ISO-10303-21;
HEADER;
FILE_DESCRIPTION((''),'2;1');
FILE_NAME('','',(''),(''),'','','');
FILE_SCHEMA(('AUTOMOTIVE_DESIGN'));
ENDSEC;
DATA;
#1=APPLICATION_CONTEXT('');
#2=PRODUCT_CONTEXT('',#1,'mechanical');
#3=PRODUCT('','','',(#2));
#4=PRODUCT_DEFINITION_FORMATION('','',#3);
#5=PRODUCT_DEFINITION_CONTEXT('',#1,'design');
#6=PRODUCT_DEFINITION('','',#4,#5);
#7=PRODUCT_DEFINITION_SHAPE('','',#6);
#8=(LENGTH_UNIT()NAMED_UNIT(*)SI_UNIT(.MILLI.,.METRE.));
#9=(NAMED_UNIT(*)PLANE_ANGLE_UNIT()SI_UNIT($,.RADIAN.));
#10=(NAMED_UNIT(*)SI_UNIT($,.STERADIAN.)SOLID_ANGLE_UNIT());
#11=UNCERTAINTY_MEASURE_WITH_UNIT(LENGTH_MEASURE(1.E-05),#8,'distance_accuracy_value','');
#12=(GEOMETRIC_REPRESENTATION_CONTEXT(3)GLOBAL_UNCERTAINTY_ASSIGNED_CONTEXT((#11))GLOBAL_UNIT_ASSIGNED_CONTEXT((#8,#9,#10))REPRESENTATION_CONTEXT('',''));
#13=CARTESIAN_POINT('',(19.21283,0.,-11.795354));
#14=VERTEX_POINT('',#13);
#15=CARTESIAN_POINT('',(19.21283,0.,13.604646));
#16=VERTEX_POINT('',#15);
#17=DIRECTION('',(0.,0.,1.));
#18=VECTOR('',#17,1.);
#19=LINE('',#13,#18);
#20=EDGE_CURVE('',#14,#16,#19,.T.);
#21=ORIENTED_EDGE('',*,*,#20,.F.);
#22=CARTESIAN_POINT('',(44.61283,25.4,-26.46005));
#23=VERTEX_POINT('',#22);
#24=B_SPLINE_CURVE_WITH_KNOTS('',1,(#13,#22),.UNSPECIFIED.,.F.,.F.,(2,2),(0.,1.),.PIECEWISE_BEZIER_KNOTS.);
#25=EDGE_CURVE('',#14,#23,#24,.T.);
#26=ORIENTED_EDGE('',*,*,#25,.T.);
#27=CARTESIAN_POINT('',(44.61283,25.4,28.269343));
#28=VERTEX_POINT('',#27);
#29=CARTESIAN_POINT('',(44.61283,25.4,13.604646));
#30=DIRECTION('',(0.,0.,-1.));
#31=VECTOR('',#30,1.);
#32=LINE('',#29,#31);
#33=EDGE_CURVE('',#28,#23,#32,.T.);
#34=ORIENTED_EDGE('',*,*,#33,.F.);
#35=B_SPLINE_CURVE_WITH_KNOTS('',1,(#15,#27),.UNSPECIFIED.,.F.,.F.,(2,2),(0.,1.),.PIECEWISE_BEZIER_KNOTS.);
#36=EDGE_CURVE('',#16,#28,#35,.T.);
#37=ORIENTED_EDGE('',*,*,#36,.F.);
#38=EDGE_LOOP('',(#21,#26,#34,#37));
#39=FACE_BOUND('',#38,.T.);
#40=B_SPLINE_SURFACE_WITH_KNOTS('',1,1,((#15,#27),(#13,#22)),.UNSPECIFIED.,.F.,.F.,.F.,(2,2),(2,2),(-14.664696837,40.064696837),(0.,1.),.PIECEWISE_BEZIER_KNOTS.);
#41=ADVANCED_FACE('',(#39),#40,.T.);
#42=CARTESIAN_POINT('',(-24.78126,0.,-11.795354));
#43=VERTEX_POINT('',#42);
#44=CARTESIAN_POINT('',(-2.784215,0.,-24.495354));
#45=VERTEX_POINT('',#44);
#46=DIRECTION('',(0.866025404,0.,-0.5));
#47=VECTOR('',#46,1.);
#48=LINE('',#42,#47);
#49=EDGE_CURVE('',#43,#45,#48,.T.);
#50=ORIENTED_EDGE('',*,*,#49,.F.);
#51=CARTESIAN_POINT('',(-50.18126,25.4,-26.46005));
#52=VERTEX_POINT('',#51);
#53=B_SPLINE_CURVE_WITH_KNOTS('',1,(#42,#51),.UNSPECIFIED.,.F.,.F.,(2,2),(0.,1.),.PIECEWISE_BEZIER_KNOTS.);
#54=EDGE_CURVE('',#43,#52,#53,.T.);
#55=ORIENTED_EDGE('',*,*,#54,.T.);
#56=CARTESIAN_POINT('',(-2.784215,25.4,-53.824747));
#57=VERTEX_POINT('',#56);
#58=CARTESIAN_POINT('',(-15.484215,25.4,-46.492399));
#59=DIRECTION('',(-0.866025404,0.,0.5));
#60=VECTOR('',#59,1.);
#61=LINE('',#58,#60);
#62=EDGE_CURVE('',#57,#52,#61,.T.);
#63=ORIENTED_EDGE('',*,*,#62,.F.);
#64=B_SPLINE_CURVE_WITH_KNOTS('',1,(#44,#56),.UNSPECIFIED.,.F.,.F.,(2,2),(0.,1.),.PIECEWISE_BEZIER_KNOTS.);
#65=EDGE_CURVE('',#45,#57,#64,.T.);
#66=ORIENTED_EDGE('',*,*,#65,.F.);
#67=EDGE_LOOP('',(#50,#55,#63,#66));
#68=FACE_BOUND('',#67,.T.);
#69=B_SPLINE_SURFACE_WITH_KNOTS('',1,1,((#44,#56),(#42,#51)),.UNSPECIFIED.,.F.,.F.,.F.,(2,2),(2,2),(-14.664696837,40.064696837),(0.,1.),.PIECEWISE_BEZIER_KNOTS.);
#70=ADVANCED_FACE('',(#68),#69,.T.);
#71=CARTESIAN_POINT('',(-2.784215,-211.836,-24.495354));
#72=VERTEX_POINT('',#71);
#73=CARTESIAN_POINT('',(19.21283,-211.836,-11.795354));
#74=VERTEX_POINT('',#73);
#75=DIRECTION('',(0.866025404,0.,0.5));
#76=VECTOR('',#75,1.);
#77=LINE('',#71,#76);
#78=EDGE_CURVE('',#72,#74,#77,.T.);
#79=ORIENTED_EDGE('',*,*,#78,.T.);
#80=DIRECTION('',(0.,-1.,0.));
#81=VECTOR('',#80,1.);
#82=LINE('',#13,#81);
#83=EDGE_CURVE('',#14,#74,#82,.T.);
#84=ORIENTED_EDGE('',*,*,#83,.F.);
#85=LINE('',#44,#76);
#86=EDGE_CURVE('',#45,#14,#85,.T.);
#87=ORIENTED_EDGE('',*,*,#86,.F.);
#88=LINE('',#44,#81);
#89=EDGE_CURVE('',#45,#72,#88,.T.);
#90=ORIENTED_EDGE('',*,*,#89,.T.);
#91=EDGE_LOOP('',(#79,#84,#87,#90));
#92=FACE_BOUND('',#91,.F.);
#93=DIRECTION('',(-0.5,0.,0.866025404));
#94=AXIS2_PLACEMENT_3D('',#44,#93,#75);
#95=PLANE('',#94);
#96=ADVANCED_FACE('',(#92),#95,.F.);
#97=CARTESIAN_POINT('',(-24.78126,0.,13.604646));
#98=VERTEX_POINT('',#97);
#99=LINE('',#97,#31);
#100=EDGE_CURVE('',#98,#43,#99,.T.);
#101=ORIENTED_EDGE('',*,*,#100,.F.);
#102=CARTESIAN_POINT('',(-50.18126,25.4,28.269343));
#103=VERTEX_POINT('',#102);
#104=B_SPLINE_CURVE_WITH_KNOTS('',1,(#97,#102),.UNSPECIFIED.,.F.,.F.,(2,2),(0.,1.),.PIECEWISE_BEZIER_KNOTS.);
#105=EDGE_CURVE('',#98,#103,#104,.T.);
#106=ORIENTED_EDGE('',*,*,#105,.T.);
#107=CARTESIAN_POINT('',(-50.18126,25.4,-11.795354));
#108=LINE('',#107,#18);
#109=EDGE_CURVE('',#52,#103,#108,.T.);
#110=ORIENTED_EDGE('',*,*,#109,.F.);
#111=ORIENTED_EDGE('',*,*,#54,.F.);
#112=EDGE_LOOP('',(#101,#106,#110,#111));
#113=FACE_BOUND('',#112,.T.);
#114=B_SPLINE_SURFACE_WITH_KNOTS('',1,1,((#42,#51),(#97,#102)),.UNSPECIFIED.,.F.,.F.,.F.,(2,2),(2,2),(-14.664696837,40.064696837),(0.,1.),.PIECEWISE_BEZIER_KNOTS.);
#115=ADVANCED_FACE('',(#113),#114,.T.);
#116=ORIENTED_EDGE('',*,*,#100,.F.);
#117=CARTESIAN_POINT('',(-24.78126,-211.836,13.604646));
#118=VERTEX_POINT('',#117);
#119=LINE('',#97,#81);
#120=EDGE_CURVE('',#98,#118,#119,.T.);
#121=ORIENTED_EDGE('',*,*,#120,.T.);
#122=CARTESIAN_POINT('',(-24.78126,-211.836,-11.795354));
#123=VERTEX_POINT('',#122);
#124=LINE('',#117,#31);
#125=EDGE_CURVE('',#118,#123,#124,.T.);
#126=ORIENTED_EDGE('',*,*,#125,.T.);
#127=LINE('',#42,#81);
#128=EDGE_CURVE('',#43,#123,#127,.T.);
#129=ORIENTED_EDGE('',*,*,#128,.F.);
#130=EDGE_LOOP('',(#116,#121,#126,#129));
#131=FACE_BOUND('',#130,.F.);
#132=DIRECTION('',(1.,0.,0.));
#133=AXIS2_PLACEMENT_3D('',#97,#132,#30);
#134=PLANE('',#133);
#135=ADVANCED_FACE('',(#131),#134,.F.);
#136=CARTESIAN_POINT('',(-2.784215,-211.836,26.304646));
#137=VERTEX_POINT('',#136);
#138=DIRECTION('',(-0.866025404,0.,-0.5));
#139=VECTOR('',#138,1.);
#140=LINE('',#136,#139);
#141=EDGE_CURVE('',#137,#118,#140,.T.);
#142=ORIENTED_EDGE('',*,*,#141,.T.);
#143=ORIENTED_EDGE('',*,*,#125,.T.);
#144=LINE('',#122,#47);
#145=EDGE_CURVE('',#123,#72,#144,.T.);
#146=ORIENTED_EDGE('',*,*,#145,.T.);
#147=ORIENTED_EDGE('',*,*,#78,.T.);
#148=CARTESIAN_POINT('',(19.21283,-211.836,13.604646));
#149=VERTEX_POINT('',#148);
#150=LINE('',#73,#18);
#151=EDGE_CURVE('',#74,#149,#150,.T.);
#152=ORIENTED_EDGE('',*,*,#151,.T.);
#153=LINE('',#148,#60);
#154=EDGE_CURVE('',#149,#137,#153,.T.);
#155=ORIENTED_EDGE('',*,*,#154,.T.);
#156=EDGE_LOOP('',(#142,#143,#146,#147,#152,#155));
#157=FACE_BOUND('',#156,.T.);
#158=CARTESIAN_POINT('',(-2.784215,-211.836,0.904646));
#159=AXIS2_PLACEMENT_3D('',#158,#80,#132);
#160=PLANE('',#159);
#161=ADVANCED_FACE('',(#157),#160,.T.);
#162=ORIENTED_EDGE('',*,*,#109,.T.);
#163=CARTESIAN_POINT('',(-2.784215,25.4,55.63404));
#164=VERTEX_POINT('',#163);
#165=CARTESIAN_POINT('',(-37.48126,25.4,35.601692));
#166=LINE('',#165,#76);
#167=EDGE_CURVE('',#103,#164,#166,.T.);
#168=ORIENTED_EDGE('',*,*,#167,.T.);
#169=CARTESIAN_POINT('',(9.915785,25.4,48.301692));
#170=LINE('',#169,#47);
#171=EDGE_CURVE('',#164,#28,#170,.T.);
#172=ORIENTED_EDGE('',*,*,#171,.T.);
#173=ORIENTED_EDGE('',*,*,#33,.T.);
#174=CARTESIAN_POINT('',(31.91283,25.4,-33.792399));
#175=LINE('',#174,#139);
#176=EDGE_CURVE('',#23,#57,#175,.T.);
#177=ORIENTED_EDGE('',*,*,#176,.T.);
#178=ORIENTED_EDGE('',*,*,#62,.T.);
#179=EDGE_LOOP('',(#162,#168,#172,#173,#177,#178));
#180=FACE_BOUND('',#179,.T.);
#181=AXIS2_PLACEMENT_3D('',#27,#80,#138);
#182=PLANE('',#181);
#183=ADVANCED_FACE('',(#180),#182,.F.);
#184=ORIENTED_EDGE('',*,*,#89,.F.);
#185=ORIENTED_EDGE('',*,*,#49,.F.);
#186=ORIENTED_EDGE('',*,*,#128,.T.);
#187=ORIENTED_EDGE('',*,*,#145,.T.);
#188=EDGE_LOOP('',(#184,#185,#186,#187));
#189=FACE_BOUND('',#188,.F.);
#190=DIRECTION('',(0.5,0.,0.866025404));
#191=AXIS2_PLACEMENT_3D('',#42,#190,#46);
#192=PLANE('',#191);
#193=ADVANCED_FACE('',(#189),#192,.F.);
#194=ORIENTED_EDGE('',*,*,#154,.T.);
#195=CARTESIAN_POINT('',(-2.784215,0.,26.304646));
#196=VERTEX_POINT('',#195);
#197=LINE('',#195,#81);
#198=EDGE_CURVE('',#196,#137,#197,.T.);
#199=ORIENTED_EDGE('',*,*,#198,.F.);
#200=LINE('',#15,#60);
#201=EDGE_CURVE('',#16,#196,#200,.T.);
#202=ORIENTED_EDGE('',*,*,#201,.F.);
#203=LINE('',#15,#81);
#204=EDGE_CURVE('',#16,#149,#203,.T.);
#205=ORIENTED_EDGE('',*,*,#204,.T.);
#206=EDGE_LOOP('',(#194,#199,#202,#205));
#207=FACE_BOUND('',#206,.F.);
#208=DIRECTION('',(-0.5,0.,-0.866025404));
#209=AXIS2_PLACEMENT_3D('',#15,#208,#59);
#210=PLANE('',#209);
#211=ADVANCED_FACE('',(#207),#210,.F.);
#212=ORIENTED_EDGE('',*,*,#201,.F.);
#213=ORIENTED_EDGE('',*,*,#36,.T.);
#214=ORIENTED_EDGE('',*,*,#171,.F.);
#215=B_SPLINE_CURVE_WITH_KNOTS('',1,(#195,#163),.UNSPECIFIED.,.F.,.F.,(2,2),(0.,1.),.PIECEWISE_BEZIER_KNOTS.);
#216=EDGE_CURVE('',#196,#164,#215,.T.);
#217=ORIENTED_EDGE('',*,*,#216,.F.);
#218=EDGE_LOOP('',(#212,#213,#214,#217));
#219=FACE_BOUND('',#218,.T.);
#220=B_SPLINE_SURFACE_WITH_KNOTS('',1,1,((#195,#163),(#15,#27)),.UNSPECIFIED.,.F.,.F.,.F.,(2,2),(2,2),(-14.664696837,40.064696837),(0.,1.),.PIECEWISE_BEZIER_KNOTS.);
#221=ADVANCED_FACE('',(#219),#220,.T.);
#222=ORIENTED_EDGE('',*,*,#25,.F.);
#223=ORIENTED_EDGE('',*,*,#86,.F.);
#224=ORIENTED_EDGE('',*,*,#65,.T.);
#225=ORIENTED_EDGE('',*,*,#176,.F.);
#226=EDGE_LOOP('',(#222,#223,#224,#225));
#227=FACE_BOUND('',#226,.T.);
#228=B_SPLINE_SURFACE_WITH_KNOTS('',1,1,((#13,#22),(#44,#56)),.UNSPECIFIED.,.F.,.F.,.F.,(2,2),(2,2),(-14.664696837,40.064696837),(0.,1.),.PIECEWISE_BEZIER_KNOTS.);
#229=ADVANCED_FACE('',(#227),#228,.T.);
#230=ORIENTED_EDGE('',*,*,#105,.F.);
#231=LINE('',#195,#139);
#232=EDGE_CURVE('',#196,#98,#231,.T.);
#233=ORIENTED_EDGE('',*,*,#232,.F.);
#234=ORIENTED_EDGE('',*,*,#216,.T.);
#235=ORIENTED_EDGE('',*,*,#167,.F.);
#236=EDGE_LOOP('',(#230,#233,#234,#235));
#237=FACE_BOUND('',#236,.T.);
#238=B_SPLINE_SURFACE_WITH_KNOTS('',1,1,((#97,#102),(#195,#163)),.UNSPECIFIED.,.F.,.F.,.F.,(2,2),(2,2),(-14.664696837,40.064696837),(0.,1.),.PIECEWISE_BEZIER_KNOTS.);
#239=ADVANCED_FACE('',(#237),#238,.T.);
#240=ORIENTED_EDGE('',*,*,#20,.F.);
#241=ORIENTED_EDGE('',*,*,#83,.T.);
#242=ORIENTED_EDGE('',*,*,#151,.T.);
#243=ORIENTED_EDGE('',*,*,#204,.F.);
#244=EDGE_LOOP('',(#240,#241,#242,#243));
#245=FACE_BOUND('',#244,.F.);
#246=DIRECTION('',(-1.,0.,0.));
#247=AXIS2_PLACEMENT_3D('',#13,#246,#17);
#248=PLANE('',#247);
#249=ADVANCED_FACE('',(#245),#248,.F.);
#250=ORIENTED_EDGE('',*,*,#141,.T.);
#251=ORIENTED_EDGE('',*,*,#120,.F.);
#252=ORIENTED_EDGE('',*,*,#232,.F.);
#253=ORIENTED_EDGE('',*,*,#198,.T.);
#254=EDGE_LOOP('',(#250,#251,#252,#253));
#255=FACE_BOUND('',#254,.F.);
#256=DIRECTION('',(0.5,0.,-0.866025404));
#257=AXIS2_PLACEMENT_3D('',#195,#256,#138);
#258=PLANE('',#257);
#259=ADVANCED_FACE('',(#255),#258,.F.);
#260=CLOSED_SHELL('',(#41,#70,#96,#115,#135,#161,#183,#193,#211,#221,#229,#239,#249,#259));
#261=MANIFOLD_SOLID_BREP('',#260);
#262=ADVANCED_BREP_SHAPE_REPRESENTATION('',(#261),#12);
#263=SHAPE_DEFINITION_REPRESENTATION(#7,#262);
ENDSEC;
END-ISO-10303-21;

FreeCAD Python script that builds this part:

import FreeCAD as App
import Part
import Sketcher
Q = App.Units.Quantity

doc = App.newDocument("Part")
body = doc.addObject("PartDesign::Body", "Body")

# Sketch on XZ plane
sketch1 = body.newObject("Sketcher::SketchObject", "Sketch")
sketch1.AttachmentSupport = (doc.getObject("XZ_Plane"), [""])
sketch1.MapMode = "FlatFace"
sketch1.addGeometry(Part.LineSegment(App.Vector(19, -12, 0), App.Vector(19, 14, 0)), False)
sketch1.addGeometry(Part.LineSegment(App.Vector(19, 14, 0), App.Vector(-3, 26, 0)), False)
sketch1.addGeometry(Part.LineSegment(App.Vector(-3, 26, 0), App.Vector(-25, 14, 0)), False)
sketch1.addGeometry(Part.LineSegment(App.Vector(-25, 14, 0), App.Vector(-25, -12, 0)), False)
sketch1.addGeometry(Part.LineSegment(App.Vector(-25, -12, 0), App.Vector(-3, -24, 0)), False)
sketch1.addGeometry(Part.LineSegment(App.Vector(-3, -24, 0), App.Vector(19, -12, 0)), False)
sketch1.addConstraint(Sketcher.Constraint("Coincident", 0, 2, 1, 1))
sketch1.addConstraint(Sketcher.Constraint("Coincident", 1, 2, 2, 1))
sketch1.addConstraint(Sketcher.Constraint("Coincident", 2, 2, 3, 1))
sketch1.addConstraint(Sketcher.Constraint("Coincident", 3, 2, 4, 1))
sketch1.addConstraint(Sketcher.Constraint("Coincident", 4, 2, 5, 1))
sketch1.addConstraint(Sketcher.Constraint("Coincident", 5, 2, 0, 1))
sketch1.addConstraint(Sketcher.Constraint("Vertical", 0))
sketch1.addConstraint(Sketcher.Constraint("Vertical", 3))
sketch1.addConstraint(Sketcher.Constraint("Parallel", 1, 4))
sketch1.addConstraint(Sketcher.Constraint("Parallel", 2, 5))
sketch1.addConstraint(Sketcher.Constraint("Horizontal", 0, 2, 2, 2))
sketch1.addConstraint(Sketcher.Constraint("Horizontal", 3, 2, 5, 2))
sketch1.addConstraint(Sketcher.Constraint("Vertical", 1, 2, 4, 2))
sketch1.addConstraint(Sketcher.Constraint("DistanceY", 0, 1, 0, 2, Q("1 in")))
sketch1.addConstraint(Sketcher.Constraint("Distance", 1, Q("1 in")))
sketch1.addConstraint(Sketcher.Constraint("Angle", 1, Q("150 deg")))
sketch1.addConstraint(Sketcher.Constraint("DistanceX", -1, 1, 0, 2, Q("19.21283 mm")))
sketch1.addConstraint(Sketcher.Constraint("DistanceY", -1, 1, 0, 2, Q("13.604646 mm")))
pad1 = body.newObject("PartDesign::Pad", "Pad")
pad1.Profile = sketch1
pad1.Length = Q("8.34 in")

# Sketch on XZ plane
sketch2 = body.newObject("Sketcher::SketchObject", "Sketch001")
sketch2.AttachmentSupport = (doc.getObject("XZ_Plane"), [""])
sketch2.MapMode = "FlatFace"
sketch2.addGeometry(Part.LineSegment(App.Vector(19, 14, 0), App.Vector(19, -12, 0)), False)
sketch2.addGeometry(Part.LineSegment(App.Vector(19, -12, 0), App.Vector(-3, -24, 0)), False)
sketch2.addGeometry(Part.LineSegment(App.Vector(-3, -24, 0), App.Vector(-25, -12, 0)), False)
sketch2.addGeometry(Part.LineSegment(App.Vector(-25, -12, 0), App.Vector(-25, 14, 0)), False)
sketch2.addGeometry(Part.LineSegment(App.Vector(-25, 14, 0), App.Vector(-3, 26, 0)), False)
sketch2.addGeometry(Part.LineSegment(App.Vector(-3, 26, 0), App.Vector(19, 14, 0)), False)
sketch2.addConstraint(Sketcher.Constraint("Coincident", 0, 2, 1, 1))
sketch2.addConstraint(Sketcher.Constraint("Coincident", 1, 2, 2, 1))
sketch2.addConstraint(Sketcher.Constraint("Coincident", 2, 2, 3, 1))
sketch2.addConstraint(Sketcher.Constraint("Coincident", 3, 2, 4, 1))
sketch2.addConstraint(Sketcher.Constraint("Coincident", 4, 2, 5, 1))
sketch2.addConstraint(Sketcher.Constraint("Coincident", 5, 2, 0, 1))
sketch2.addConstraint(Sketcher.Constraint("Vertical", 0))
sketch2.addConstraint(Sketcher.Constraint("Vertical", 3))
sketch2.addConstraint(Sketcher.Constraint("Parallel", 1, 4))
sketch2.addConstraint(Sketcher.Constraint("Parallel", 2, 5))
sketch2.addConstraint(Sketcher.Constraint("Horizontal", 0, 2, 2, 2))
sketch2.addConstraint(Sketcher.Constraint("Horizontal", 3, 2, 5, 2))
sketch2.addConstraint(Sketcher.Constraint("Vertical", 1, 2, 4, 2))
sketch2.addConstraint(Sketcher.Constraint("DistanceY", 0, 2, 0, 1, Q("1 in")))
sketch2.addConstraint(Sketcher.Constraint("Distance", 1, Q("1 in")))
sketch2.addConstraint(Sketcher.Constraint("Angle", 1, Q("-150 deg")))
sketch2.addConstraint(Sketcher.Constraint("DistanceX", -1, 1, 0, 2, Q("19.21283 mm")))
sketch2.addConstraint(Sketcher.Constraint("DistanceY", 0, 2, -1, 1, Q("11.795354 mm")))
pad2 = body.newObject("PartDesign::Pad", "Pad001")
pad2.Profile = sketch2
pad2.Length = Q("1 in")
pad2.Reversed = True
pad2.TaperAngle = 45

doc.recompute()
